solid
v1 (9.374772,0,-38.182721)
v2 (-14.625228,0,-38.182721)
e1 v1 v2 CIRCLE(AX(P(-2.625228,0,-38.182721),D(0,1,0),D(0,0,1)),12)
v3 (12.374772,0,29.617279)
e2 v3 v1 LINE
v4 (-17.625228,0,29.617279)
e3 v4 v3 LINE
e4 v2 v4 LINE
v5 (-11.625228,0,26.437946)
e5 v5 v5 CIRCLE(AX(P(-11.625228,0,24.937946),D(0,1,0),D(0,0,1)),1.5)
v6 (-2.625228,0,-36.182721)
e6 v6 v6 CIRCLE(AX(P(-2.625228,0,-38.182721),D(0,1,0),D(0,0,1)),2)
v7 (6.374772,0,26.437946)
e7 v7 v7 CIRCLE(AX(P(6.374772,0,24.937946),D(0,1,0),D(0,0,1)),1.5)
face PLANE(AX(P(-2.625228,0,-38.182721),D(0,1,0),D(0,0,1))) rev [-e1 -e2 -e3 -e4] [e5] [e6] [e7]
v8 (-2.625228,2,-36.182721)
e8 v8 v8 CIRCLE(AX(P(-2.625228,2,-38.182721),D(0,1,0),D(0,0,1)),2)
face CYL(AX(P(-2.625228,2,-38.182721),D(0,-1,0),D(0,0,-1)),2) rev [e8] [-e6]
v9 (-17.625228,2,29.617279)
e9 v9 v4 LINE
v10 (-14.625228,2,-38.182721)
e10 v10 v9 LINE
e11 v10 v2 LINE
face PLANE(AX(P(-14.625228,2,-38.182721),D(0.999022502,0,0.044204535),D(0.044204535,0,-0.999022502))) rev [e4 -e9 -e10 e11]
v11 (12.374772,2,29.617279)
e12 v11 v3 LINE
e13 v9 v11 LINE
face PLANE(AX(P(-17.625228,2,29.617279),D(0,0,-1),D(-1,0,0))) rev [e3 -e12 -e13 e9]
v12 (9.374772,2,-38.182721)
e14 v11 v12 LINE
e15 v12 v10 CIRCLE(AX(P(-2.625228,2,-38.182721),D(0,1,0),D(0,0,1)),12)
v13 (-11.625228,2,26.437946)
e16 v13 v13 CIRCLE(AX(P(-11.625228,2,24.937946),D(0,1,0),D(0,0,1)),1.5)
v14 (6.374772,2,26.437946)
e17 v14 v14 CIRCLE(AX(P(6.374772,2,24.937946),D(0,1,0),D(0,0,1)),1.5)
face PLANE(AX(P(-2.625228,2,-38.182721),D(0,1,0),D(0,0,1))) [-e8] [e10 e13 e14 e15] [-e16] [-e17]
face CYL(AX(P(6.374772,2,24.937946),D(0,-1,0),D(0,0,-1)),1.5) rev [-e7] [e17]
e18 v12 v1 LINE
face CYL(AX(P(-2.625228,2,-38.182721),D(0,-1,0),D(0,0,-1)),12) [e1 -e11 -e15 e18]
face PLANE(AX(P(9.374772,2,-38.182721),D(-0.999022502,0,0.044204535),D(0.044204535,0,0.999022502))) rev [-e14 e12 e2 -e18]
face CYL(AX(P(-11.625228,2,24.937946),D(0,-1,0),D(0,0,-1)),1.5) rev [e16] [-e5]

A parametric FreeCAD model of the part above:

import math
import FreeCAD as App
import Part
import Sketcher
Q = App.Units.Quantity

doc = App.newDocument("Part")
body = doc.addObject("PartDesign::Body", "Body")

# Sketch on XZ plane
sketch1 = body.newObject("Sketcher::SketchObject", "Sketch")
sketch1.AttachmentSupport = (doc.getObject("XZ_Plane"), [""])
sketch1.MapMode = "FlatFace"
sketch1.addGeometry([
    Part.LineSegment(App.Vector(-17.625228, 29.617279, 0), App.Vector(12.374772, 29.617279, 0)),  # 0
    Part.LineSegment(App.Vector(12.374772, 29.617279, 0), App.Vector(9.374772, -38.182721, 0)),  # 1
    Part.ArcOfCircle(Part.Circle(App.Vector(-2.625228, -38.182721, 0), App.Vector(0, 0, 1), 12), math.radians(180), math.radians(360)),  # 2
    Part.LineSegment(App.Vector(-14.625228, -38.182721, 0), App.Vector(-17.625228, 29.617279, 0)),  # 3
    Part.Circle(App.Vector(-11.625228, 24.937946, 0), App.Vector(0, 0, 1), 1.5),  # 4
    Part.Circle(App.Vector(6.374772, 24.937946, 0), App.Vector(0, 0, 1), 1.5),  # 5
    Part.Circle(App.Vector(-2.625228, -38.182721, 0), App.Vector(0, 0, 1), 2),  # 6
], False)
sketch1.addConstraint([
    Sketcher.Constraint("Coincident", 0, 2, 1, 1),
    Sketcher.Constraint("Coincident", 1, 2, 2, 2),
    Sketcher.Constraint("Coincident", 2, 1, 3, 1),
    Sketcher.Constraint("Coincident", 3, 2, 0, 1),
    Sketcher.Constraint("Horizontal", 0),
    Sketcher.Constraint("Coincident", 6, 3, 2, 3),
    Sketcher.Constraint("Equal", 4, 5),
    Sketcher.Constraint("Horizontal", 4, 3, 5, 3),
    Sketcher.Constraint("Horizontal", 6, 3, 1, 2),
    Sketcher.Constraint("Horizontal", 1, 2, 2, 1),
    Sketcher.Constraint("Equal", 1, 3),
    Sketcher.Constraint("Diameter", 4, Q("3 mm")),
    Sketcher.Constraint("Diameter", 6, Q("4 mm")),
    Sketcher.Constraint("Radius", 2, Q("12 mm")),
    Sketcher.Constraint("DistanceX", 0, 1, 0, 2, Q("30 mm")),
    Sketcher.Constraint("DistanceX", 4, 3, 2, 3, Q("9 mm")),
    Sketcher.Constraint("DistanceX", 4, 3, 5, 3, Q("18 mm")),
    Sketcher.Constraint("DistanceY", 2, 3, 0, 2, Q("67.8 mm")),
    Sketcher.Constraint("DistanceY", 2, 3, -1, 1, Q("38.182721 mm")),
    Sketcher.Constraint("DistanceX", 2, 3, -1, 1, Q("2.625228 mm")),
    Sketcher.Constraint("DistanceY", -1, 1, 4, 3, Q("24.937946 mm")),
])
pad1 = body.newObject("PartDesign::Pad", "Pad")
pad1.Profile = sketch1
pad1.Length = 2
pad1.Reversed = True

doc.recompute()
